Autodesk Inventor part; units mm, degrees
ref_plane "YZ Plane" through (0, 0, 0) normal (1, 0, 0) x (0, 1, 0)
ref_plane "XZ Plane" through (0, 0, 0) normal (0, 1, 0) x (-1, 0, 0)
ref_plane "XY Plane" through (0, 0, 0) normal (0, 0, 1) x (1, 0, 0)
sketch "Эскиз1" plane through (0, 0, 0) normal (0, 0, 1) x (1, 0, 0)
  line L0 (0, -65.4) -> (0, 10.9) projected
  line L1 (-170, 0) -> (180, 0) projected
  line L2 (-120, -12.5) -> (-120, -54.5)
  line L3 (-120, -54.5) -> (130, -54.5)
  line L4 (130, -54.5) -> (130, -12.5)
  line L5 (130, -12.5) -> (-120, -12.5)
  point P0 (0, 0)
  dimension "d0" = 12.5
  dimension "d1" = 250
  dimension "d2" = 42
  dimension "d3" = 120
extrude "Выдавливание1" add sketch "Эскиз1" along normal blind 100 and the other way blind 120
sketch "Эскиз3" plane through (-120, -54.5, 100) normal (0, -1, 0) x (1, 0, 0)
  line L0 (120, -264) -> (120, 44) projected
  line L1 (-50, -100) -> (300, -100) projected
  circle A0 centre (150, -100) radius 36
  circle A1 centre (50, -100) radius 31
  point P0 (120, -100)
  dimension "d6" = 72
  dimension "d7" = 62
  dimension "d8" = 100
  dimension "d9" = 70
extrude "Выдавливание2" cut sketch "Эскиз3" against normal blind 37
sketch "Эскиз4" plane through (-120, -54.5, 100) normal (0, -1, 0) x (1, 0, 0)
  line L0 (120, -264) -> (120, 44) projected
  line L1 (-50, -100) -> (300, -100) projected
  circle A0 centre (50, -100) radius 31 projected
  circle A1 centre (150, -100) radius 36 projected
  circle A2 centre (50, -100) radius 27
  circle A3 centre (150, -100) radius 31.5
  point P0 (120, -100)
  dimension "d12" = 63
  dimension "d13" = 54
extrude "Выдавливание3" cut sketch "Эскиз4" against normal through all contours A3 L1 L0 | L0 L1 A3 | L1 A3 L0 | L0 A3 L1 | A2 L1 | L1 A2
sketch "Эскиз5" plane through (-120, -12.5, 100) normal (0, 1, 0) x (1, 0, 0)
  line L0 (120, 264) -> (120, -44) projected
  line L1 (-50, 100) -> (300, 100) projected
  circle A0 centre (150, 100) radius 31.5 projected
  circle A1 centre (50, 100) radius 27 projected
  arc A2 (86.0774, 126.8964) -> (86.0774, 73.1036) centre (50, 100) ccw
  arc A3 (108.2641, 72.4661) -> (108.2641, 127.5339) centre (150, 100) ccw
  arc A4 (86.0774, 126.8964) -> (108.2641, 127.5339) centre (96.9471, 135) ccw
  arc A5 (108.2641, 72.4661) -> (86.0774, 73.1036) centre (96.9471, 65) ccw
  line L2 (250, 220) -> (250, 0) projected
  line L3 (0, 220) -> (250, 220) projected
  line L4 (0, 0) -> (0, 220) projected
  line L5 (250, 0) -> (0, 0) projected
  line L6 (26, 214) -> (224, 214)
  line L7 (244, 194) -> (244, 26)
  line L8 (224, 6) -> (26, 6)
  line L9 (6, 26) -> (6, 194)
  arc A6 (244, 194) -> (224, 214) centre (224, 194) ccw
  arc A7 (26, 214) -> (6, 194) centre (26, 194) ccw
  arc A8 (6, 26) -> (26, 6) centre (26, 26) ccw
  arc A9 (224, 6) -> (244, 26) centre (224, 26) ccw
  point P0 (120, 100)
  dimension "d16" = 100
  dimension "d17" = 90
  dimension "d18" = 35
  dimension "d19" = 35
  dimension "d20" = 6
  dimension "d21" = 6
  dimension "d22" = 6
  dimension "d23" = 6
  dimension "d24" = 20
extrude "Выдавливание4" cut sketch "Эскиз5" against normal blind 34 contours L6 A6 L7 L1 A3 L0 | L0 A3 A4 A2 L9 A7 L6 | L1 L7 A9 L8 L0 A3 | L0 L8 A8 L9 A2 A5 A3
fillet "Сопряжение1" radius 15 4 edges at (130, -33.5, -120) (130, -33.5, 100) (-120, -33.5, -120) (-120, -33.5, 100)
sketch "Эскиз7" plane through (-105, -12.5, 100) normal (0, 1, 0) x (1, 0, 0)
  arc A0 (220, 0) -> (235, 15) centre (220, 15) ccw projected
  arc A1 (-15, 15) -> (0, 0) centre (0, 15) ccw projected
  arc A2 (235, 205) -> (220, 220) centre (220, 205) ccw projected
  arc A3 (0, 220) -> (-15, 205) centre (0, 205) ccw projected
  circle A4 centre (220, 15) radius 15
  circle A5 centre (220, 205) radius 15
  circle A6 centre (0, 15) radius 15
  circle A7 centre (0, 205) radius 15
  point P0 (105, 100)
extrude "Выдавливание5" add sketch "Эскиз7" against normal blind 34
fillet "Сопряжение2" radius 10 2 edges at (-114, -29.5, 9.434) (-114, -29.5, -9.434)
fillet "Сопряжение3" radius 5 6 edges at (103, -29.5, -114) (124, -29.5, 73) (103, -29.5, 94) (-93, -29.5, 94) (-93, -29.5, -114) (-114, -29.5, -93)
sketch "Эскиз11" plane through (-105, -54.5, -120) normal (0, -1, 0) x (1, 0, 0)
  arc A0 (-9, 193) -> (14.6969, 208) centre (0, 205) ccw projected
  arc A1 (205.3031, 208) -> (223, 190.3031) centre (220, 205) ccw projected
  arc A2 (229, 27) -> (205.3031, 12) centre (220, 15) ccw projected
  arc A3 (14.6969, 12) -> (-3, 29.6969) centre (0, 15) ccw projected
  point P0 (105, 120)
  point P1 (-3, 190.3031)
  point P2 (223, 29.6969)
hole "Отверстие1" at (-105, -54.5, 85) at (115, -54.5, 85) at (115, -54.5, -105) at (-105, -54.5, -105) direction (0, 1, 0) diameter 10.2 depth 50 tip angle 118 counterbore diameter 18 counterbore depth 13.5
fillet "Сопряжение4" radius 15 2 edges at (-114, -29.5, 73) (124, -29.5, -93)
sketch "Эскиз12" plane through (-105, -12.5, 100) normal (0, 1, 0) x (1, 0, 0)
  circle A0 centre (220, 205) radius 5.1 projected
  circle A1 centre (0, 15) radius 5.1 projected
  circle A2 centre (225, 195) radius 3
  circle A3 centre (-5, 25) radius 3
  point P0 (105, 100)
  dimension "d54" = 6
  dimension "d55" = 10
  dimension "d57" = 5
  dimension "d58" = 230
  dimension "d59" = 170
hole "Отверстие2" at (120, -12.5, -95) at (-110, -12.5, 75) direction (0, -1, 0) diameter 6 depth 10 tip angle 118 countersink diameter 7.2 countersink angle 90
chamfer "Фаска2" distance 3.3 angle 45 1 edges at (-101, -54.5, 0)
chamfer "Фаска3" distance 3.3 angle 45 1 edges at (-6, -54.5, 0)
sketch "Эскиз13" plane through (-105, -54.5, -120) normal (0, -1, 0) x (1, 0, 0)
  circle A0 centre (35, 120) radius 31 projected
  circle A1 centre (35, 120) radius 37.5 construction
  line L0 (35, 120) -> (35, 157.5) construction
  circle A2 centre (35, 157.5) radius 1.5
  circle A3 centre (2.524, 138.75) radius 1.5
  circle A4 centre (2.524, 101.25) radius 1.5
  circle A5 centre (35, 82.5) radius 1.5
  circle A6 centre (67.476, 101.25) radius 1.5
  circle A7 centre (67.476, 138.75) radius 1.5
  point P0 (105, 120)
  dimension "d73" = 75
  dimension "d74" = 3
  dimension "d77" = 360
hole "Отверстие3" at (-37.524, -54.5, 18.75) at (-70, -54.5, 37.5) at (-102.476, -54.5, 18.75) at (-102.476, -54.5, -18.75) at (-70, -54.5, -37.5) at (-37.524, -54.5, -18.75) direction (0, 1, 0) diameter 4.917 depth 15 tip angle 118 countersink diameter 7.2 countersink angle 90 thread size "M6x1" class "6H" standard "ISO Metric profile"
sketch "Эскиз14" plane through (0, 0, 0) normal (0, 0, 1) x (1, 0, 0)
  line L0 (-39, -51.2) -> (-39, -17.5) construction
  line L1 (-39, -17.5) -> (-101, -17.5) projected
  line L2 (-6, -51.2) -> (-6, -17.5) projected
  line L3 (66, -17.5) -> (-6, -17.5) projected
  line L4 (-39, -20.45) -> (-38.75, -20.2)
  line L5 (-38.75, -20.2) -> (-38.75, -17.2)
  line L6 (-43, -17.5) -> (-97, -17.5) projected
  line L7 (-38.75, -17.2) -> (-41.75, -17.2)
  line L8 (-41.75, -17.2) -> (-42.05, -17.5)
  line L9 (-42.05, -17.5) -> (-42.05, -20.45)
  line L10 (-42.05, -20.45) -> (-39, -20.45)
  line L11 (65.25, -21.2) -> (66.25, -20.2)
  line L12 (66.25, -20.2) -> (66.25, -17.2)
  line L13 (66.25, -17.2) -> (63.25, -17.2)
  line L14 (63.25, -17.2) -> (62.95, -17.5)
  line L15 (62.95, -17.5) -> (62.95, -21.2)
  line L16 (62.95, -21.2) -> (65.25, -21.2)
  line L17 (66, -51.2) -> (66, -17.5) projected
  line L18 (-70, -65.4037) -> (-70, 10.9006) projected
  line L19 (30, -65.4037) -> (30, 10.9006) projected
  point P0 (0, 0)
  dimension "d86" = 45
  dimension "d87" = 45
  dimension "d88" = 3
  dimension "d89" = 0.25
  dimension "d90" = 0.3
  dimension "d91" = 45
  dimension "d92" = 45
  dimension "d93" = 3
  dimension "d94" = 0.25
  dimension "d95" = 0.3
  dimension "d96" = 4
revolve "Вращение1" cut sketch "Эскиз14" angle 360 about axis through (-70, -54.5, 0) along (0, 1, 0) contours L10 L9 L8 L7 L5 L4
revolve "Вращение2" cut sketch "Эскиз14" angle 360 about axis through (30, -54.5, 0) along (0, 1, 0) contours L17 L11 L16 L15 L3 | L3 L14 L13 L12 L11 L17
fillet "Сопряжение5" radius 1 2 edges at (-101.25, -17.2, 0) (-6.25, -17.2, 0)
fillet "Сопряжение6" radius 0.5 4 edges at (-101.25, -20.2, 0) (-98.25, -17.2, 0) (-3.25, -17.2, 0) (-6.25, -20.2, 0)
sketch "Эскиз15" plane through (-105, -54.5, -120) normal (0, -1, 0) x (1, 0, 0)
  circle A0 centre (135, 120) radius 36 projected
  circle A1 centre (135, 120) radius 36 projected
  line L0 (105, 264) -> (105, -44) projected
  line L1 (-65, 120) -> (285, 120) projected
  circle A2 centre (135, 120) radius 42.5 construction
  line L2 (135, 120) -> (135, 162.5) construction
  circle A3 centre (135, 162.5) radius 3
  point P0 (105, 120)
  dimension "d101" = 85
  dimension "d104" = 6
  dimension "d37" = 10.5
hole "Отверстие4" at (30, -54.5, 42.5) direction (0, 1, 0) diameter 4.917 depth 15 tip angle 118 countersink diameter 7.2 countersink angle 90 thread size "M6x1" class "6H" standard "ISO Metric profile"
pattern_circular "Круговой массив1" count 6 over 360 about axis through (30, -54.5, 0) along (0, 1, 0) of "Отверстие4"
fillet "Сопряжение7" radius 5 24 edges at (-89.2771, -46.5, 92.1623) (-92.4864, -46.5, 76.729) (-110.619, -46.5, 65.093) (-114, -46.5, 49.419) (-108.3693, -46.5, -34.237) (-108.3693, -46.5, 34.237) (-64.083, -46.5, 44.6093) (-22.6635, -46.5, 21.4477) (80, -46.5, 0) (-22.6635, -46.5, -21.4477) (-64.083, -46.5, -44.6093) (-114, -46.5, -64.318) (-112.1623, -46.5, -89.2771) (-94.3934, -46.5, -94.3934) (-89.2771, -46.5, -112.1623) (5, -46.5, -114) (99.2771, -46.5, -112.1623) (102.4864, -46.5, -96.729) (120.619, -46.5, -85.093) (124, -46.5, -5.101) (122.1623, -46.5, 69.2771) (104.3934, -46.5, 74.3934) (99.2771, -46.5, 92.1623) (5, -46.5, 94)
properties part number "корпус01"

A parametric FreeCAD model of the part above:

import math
import FreeCAD as App
import Part
import Sketcher
Q = App.Units.Quantity


def edges_at(feature, points):
    """Names of the edges that pass closest to the given points."""
    edges = feature.Shape.Edges
    near = lambda p: min(range(len(edges)), key=lambda i: edges[i].distToShape(Part.Vertex(*p))[0])
    return sorted({f"Edge{near(p) + 1}" for p in points})


def add_polygon(sketch, points):
    """Adds a closed chain of lines whose ends are joined by coincident constraints."""
    first, n = sketch.GeometryCount, len(points)
    for a, b in zip(points, points[1:] + points[:1]):
        sketch.addGeometry(Part.LineSegment(App.Vector(*a, 0), App.Vector(*b, 0)), False)
    for i in range(n):
        sketch.addConstraint(Sketcher.Constraint("Coincident", first + i, 2, first + (i + 1) % n, 1))

doc = App.newDocument("Part")
body = doc.addObject("PartDesign::Body", "Body")

# Sketch on XY plane
sketch1 = body.newObject("Sketcher::SketchObject", "Sketch")
sketch1.AttachmentSupport = (doc.getObject("XY_Plane"), [""])
sketch1.MapMode = "FlatFace"
add_polygon(sketch1, [(-120, -54.5), (130, -54.5), (130, -12.5), (-120, -12.5)])  # lines 0-3
sketch1.addConstraint(Sketcher.Constraint("Horizontal", 0))
sketch1.addConstraint(Sketcher.Constraint("Vertical", 1))
sketch1.addConstraint(Sketcher.Constraint("Horizontal", 2))
sketch1.addConstraint(Sketcher.Constraint("Vertical", 3))
sketch1.addConstraint(Sketcher.Constraint("DistanceX", 0, 1, 0, 2, 250.0))
sketch1.addConstraint(Sketcher.Constraint("DistanceY", 1, 1, 1, 2, 42.0))
sketch1.addConstraint(Sketcher.Constraint("DistanceX", 2, 2, -1, 1, 120.0))
sketch1.addConstraint(Sketcher.Constraint("DistanceY", 1, 2, -1, 1, 12.5))
pad1 = body.newObject("PartDesign::Pad", "Pad")
pad1.Profile = sketch1
pad1.Type = "TwoLengths"
pad1.Length = 100
pad1.Length2 = 120

# Sketch on XZ plane
sketch2 = body.newObject("Sketcher::SketchObject", "Sketch001")
sketch2.AttachmentSupport = (doc.getObject("XZ_Plane"), [""])
sketch2.MapMode = "FlatFace"
sketch2.AttachmentOffset = App.Placement(App.Vector(0, 0, 54.5), App.Rotation())
sketch2.addGeometry(Part.Circle(App.Vector(30, 0, 0), App.Vector(0, 0, 1), 36), False)
sketch2.addGeometry(Part.Circle(App.Vector(-70, 0, 0), App.Vector(0, 0, 1), 31), False)
sketch2.addConstraint(Sketcher.Constraint("PointOnObject", 0, 3, -1))
sketch2.addConstraint(Sketcher.Constraint("PointOnObject", 1, 3, -1))
sketch2.addConstraint(Sketcher.Constraint("Diameter", 0, 72.0))
sketch2.addConstraint(Sketcher.Constraint("Diameter", 1, 62.0))
sketch2.addConstraint(Sketcher.Constraint("DistanceX", 1, 3, -1, 1, 70.0))
sketch2.addConstraint(Sketcher.Constraint("DistanceX", 1, 3, 0, 3, 100.0))
pocket1 = body.newObject("PartDesign::Pocket", "Pocket")
pocket1.Profile = sketch2
pocket1.Length = 37

# Sketch on XZ plane
sketch3 = body.newObject("Sketcher::SketchObject", "Sketch002")
sketch3.AttachmentSupport = (doc.getObject("XZ_Plane"), [""])
sketch3.MapMode = "FlatFace"
sketch3.AttachmentOffset = App.Placement(App.Vector(0, 0, 54.5), App.Rotation())
sketch3.addGeometry(Part.Circle(App.Vector(30, 0, 0), App.Vector(0, 0, 1), 31.5), False)
sketch3.addGeometry(Part.Circle(App.Vector(-70, 0, 0), App.Vector(0, 0, 1), 27), False)
sketch3.addConstraint(Sketcher.Constraint("PointOnObject", 0, 3, -1))
sketch3.addConstraint(Sketcher.Constraint("PointOnObject", 1, 3, -1))
sketch3.addConstraint(Sketcher.Constraint("Diameter", 0, 63.0))
sketch3.addConstraint(Sketcher.Constraint("Diameter", 1, 54.0))
sketch3.addConstraint(Sketcher.Constraint("DistanceX", -1, 1, 0, 3, 30.0))
sketch3.addConstraint(Sketcher.Constraint("DistanceX", 1, 3, -1, 1, 70.0))
pocket2 = body.newObject("PartDesign::Pocket", "Pocket001")
pocket2.Profile = sketch3
pocket2.Type = "ThroughAll"

# Sketch on XZ plane
sketch4 = body.newObject("Sketcher::SketchObject", "Sketch003")
sketch4.AttachmentSupport = (doc.getObject("XZ_Plane"), [""])
sketch4.MapMode = "FlatFace"
sketch4.AttachmentOffset = App.Placement(App.Vector(0, 0, 12.5), App.Rotation())
sketch4.addGeometry(Part.LineSegment(App.Vector(104, -114, 0), App.Vector(-94, -114, 0)), False)
sketch4.addGeometry(Part.ArcOfCircle(Part.Circle(App.Vector(-94, -94, 0), App.Vector(0, 0, 1), 20), math.radians(180), math.radians(270)), False)
sketch4.addGeometry(Part.LineSegment(App.Vector(-114, -94, 0), App.Vector(-114, -9.433723, 0)), False)
sketch4.addGeometry(Part.ArcOfCircle(Part.Circle(App.Vector(-70, 0, 0), App.Vector(0, 0, 1), 44.999946), math.radians(-167.89883), math.radians(-36.705242)), False)
sketch4.addGeometry(Part.ArcOfCircle(Part.Circle(App.Vector(-23.0529, -35, 0), App.Vector(0, 0, 1), 13.557976), math.radians(33.413807), math.radians(143.294662)), False)
sketch4.addGeometry(Part.ArcOfCircle(Part.Circle(App.Vector(30, 0, 0), App.Vector(0, 0, 1), 50.00001), math.radians(-146.586469), math.radians(146.586469)), False)
sketch4.addGeometry(Part.ArcOfCircle(Part.Circle(App.Vector(-23.0529, 35, 0), App.Vector(0, 0, 1), 13.557918), math.radians(-143.294662), math.radians(-33.413807)), False)
sketch4.addGeometry(Part.ArcOfCircle(Part.Circle(App.Vector(-70, 0, 0), App.Vector(0, 0, 1), 44.999946), math.radians(36.705242), math.radians(167.89883)), False)
sketch4.addGeometry(Part.LineSegment(App.Vector(-114, 9.433723, 0), App.Vector(-114, 74, 0)), False)
sketch4.addGeometry(Part.ArcOfCircle(Part.Circle(App.Vector(-94, 74, 0), App.Vector(0, 0, 1), 20), math.radians(90), math.radians(180)), False)
sketch4.addGeometry(Part.LineSegment(App.Vector(-94, 94, 0), App.Vector(104, 94, 0)), False)
sketch4.addGeometry(Part.ArcOfCircle(Part.Circle(App.Vector(104, 74, 0), App.Vector(0, 0, 1), 20), math.radians(0), math.radians(90)), False)
sketch4.addGeometry(Part.LineSegment(App.Vector(124, 74, 0), App.Vector(124, -94, 0)), False)
sketch4.addGeometry(Part.ArcOfCircle(Part.Circle(App.Vector(104, -94, 0), App.Vector(0, 0, 1), 20), math.radians(-90), math.radians(0)), False)
sketch4.addConstraint(Sketcher.Constraint("Tangent", 0, 2, 1, 2))
sketch4.addConstraint(Sketcher.Constraint("Tangent", 1, 1, 2, 1))
sketch4.addConstraint(Sketcher.Constraint("Coincident", 2, 2, 3, 1))
sketch4.addConstraint(Sketcher.Constraint("Tangent", 3, 2, 4, 2))
sketch4.addConstraint(Sketcher.Constraint("Tangent", 4, 1, 5, 1))
sketch4.addConstraint(Sketcher.Constraint("Tangent", 5, 2, 6, 2))
sketch4.addConstraint(Sketcher.Constraint("Tangent", 6, 1, 7, 1))
sketch4.addConstraint(Sketcher.Constraint("Coincident", 7, 2, 8, 1))
sketch4.addConstraint(Sketcher.Constraint("Tangent", 8, 2, 9, 2))
sketch4.addConstraint(Sketcher.Constraint("Tangent", 9, 1, 10, 1))
sketch4.addConstraint(Sketcher.Constraint("Tangent", 10, 2, 11, 2))
sketch4.addConstraint(Sketcher.Constraint("Tangent", 11, 1, 12, 1))
sketch4.addConstraint(Sketcher.Constraint("Tangent", 12, 2, 13, 2))
sketch4.addConstraint(Sketcher.Constraint("Tangent", 13, 1, 0, 1))
sketch4.addConstraint(Sketcher.Constraint("Horizontal", 0))
sketch4.addConstraint(Sketcher.Constraint("Vertical", 2))
sketch4.addConstraint(Sketcher.Constraint("Vertical", 8))
sketch4.addConstraint(Sketcher.Constraint("Horizontal", 10))
sketch4.addConstraint(Sketcher.Constraint("Vertical", 12))
sketch4.addConstraint(Sketcher.Constraint("Coincident", 7, 3, 3, 3))
sketch4.addConstraint(Sketcher.Constraint("Equal", 4, 6))
sketch4.addConstraint(Sketcher.Constraint("Equal", 3, 7))
sketch4.addConstraint(Sketcher.Constraint("Equal", 1, 9))
sketch4.addConstraint(Sketcher.Constraint("Equal", 9, 11))
sketch4.addConstraint(Sketcher.Constraint("Equal", 11, 13))
sketch4.addConstraint(Sketcher.Constraint("Symmetric", 4, 3, 6, 3, -1))
sketch4.addConstraint(Sketcher.Constraint("Vertical", 1, 3, 9, 3))
sketch4.addConstraint(Sketcher.Constraint("Radius", 1, 20.0))
sketch4.addConstraint(Sketcher.Constraint("Radius", 3, 45.0))
sketch4.addConstraint(Sketcher.Constraint("Radius", 5, 50.0))
sketch4.addConstraint(Sketcher.Constraint("DistanceY", 4, 3, -1, 1, 35.0))
sketch4.addConstraint(Sketcher.Constraint("DistanceX", 3, 3, 5, 3, 100.0))
sketch4.addConstraint(Sketcher.Constraint("DistanceX", 0, 2, 0, 1, 198.0))
sketch4.addConstraint(Sketcher.Constraint("DistanceY", 12, 2, 12, 1, 168.0))
sketch4.addConstraint(Sketcher.Constraint("DistanceX", 1, 3, -1, 1, 94.0))
sketch4.addConstraint(Sketcher.Constraint("DistanceY", 1, 3, -1, 1, 94.0))
sketch4.addConstraint(Sketcher.Constraint("DistanceX", 3, 3, -1, 1, 70.0))
pocket3 = body.newObject("PartDesign::Pocket", "Pocket002")
pocket3.Profile = sketch4
pocket3.Length = 34
pocket3.Reversed = True
doc.recompute()

fillet = body.newObject("PartDesign::Fillet", "Fillet")
fillet.Base = (pocket3, edges_at(pocket3, [
    (130, -33.5, -120),
    (130, -33.5, 100),
    (-120, -33.5, -120),
    (-120, -33.5, 100),
]))
fillet.Radius = 15

# Sketch on XZ plane
sketch5 = body.newObject("Sketcher::SketchObject", "Sketch004")
sketch5.AttachmentSupport = (doc.getObject("XZ_Plane"), [""])
sketch5.MapMode = "FlatFace"
sketch5.AttachmentOffset = App.Placement(App.Vector(0, 0, 12.5), App.Rotation())
sketch5.addGeometry(Part.Circle(App.Vector(115, 85, 0), App.Vector(0, 0, 1), 15), False)
sketch5.addGeometry(Part.Circle(App.Vector(-105, 85, 0), App.Vector(0, 0, 1), 15), False)
sketch5.addGeometry(Part.Circle(App.Vector(115, -105, 0), App.Vector(0, 0, 1), 15), False)
sketch5.addGeometry(Part.Circle(App.Vector(-105, -105, 0), App.Vector(0, 0, 1), 15), False)
sketch5.addConstraint(Sketcher.Constraint("Equal", 0, 1))
sketch5.addConstraint(Sketcher.Constraint("Equal", 1, 2))
sketch5.addConstraint(Sketcher.Constraint("Equal", 2, 3))
sketch5.addConstraint(Sketcher.Constraint("Horizontal", 0, 3, 1, 3))
sketch5.addConstraint(Sketcher.Constraint("Horizontal", 2, 3, 3, 3))
sketch5.addConstraint(Sketcher.Constraint("Vertical", 0, 3, 2, 3))
sketch5.addConstraint(Sketcher.Constraint("Vertical", 1, 3, 3, 3))
sketch5.addConstraint(Sketcher.Constraint("Diameter", 0, 30.0))
sketch5.addConstraint(Sketcher.Constraint("DistanceX", -1, 1, 0, 3, 115.0))
sketch5.addConstraint(Sketcher.Constraint("DistanceY", -1, 1, 0, 3, 85.0))
sketch5.addConstraint(Sketcher.Constraint("DistanceX", 1, 3, -1, 1, 105.0))
sketch5.addConstraint(Sketcher.Constraint("DistanceY", 2, 3, -1, 1, 105.0))
pad2 = body.newObject("PartDesign::Pad", "Pad001")
pad2.Profile = sketch5
pad2.Length = 34
doc.recompute()

fillet2 = body.newObject("PartDesign::Fillet", "Fillet001")
fillet2.Base = (pad2, edges_at(pad2, [(-114, -29.5, 9.434), (-114, -29.5, -9.434)]))
fillet2.Radius = 10
doc.recompute()

fillet3 = body.newObject("PartDesign::Fillet", "Fillet002")
fillet3.Base = (fillet2, edges_at(fillet2, [
    (103, -29.5, -114),
    (124, -29.5, 73),
    (103, -29.5, 94),
    (-93, -29.5, 94),
    (-93, -29.5, -114),
    (-114, -29.5, -93),
]))
fillet3.Radius = 5

# Sketch on XZ plane
sketch6 = body.newObject("Sketcher::SketchObject", "Sketch005")
sketch6.AttachmentSupport = (doc.getObject("XZ_Plane"), [""])
sketch6.MapMode = "FlatFace"
sketch6.AttachmentOffset = App.Placement(App.Vector(0, 0, 54.5), App.Rotation())
sketch6.addGeometry(Part.Circle(App.Vector(-105, 85, 0), App.Vector(0, 0, 1), 5.1), False)
sketch6.addGeometry(Part.Circle(App.Vector(115, 85, 0), App.Vector(0, 0, 1), 5.1), False)
sketch6.addGeometry(Part.Circle(App.Vector(115, -105, 0), App.Vector(0, 0, 1), 5.1), False)
sketch6.addGeometry(Part.Circle(App.Vector(-105, -105, 0), App.Vector(0, 0, 1), 5.1), False)
sketch6.addConstraint(Sketcher.Constraint("Equal", 0, 1))
sketch6.addConstraint(Sketcher.Constraint("Equal", 1, 2))
sketch6.addConstraint(Sketcher.Constraint("Equal", 2, 3))
sketch6.addConstraint(Sketcher.Constraint("Horizontal", 0, 3, 1, 3))
sketch6.addConstraint(Sketcher.Constraint("Horizontal", 2, 3, 3, 3))
sketch6.addConstraint(Sketcher.Constraint("Vertical", 1, 3, 2, 3))
sketch6.addConstraint(Sketcher.Constraint("Vertical", 0, 3, 3, 3))
sketch6.addConstraint(Sketcher.Constraint("Diameter", 0, 10.2))
sketch6.addConstraint(Sketcher.Constraint("DistanceX", 0, 3, -1, 1, 105.0))
sketch6.addConstraint(Sketcher.Constraint("DistanceY", -1, 1, 0, 3, 85.0))
sketch6.addConstraint(Sketcher.Constraint("DistanceX", -1, 1, 1, 3, 115.0))
sketch6.addConstraint(Sketcher.Constraint("DistanceY", 2, 3, -1, 1, 105.0))
doc.recompute()
hole = body.newObject("PartDesign::Hole", "Hole")
hole.Profile = sketch6
hole.ThreadType = "None"
hole.Diameter = 10.2
hole.DepthType = "Dimension"
hole.Depth = 50
hole.DrillPoint = "Angled"
hole.DrillPointAngle = 118
hole.HoleCutType = "Counterbore"
hole.HoleCutDiameter = 18
hole.HoleCutDepth = 13.5
doc.recompute()

fillet4 = body.newObject("PartDesign::Fillet", "Fillet003")
fillet4.Base = (hole, edges_at(hole, [(-114, -29.5, 73), (124, -29.5, -93)]))
fillet4.Radius = 15

# Sketch on XZ plane
sketch7 = body.newObject("Sketcher::SketchObject", "Sketch006")
sketch7.AttachmentSupport = (doc.getObject("XZ_Plane"), [""])
sketch7.MapMode = "FlatFace"
sketch7.AttachmentOffset = App.Placement(App.Vector(0, 0, 12.5), App.Rotation())
sketch7.addGeometry(Part.Circle(App.Vector(120, -95, 0), App.Vector(0, 0, 1), 3), False)
sketch7.addGeometry(Part.Circle(App.Vector(-110, 75, 0), App.Vector(0, 0, 1), 3), False)
sketch7.addConstraint(Sketcher.Constraint("Equal", 0, 1))
sketch7.addConstraint(Sketcher.Constraint("Diameter", 0, 6.0))
sketch7.addConstraint(Sketcher.Constraint("DistanceX", -1, 1, 0, 3, 120.0))
sketch7.addConstraint(Sketcher.Constraint("DistanceY", 0, 3, -1, 1, 95.0))
sketch7.addConstraint(Sketcher.Constraint("DistanceX", 1, 3, -1, 1, 110.0))
sketch7.addConstraint(Sketcher.Constraint("DistanceY", -1, 1, 1, 3, 75.0))
doc.recompute()
hole2 = body.newObject("PartDesign::Hole", "Hole001")
hole2.Profile = sketch7
hole2.ThreadType = "None"
hole2.Diameter = 6
hole2.DepthType = "Dimension"
hole2.Depth = 10
hole2.DrillPoint = "Angled"
hole2.DrillPointAngle = 118
hole2.HoleCutType = "Countersink"
hole2.HoleCutDiameter = 7.2
hole2.HoleCutCountersinkAngle = 90
hole2.Reversed = True
doc.recompute()

chamfer = body.newObject("PartDesign::Chamfer", "Chamfer")
chamfer.Base = (hole2, edges_at(hole2, [(-101, -54.5, 0)]))
chamfer.Size = 3.3
doc.recompute()

chamfer2 = body.newObject("PartDesign::Chamfer", "Chamfer001")
chamfer2.Base = (chamfer, edges_at(chamfer, [(-6, -54.5, 0)]))
chamfer2.Size = 3.3

# Sketch on XZ plane
sketch8 = body.newObject("Sketcher::SketchObject", "Sketch007")
sketch8.AttachmentSupport = (doc.getObject("XZ_Plane"), [""])
sketch8.MapMode = "FlatFace"
sketch8.AttachmentOffset = App.Placement(App.Vector(0, 0, 54.5), App.Rotation())
sketch8.addGeometry(Part.Circle(App.Vector(-37.524, 18.75, 0), App.Vector(0, 0, 1), 2.4585), False)
sketch8.addGeometry(Part.Circle(App.Vector(-70, 37.5, 0), App.Vector(0, 0, 1), 2.4585), False)
sketch8.addGeometry(Part.Circle(App.Vector(-102.476, 18.75, 0), App.Vector(0, 0, 1), 2.4585), False)
sketch8.addGeometry(Part.Circle(App.Vector(-102.476, -18.75, 0), App.Vector(0, 0, 1), 2.4585), False)
sketch8.addGeometry(Part.Circle(App.Vector(-70, -37.5, 0), App.Vector(0, 0, 1), 2.4585), False)
sketch8.addGeometry(Part.Circle(App.Vector(-37.524, -18.75, 0), App.Vector(0, 0, 1), 2.4585), False)
sketch8.addConstraint(Sketcher.Constraint("Equal", 0, 1))
sketch8.addConstraint(Sketcher.Constraint("Equal", 1, 2))
sketch8.addConstraint(Sketcher.Constraint("Equal", 2, 3))
sketch8.addConstraint(Sketcher.Constraint("Equal", 3, 4))
sketch8.addConstraint(Sketcher.Constraint("Equal", 4, 5))
sketch8.addConstraint(Sketcher.Constraint("Symmetric", 2, 3, 3, 3, -1))
sketch8.addConstraint(Sketcher.Constraint("Symmetric", 1, 3, 4, 3, -1))
sketch8.addConstraint(Sketcher.Constraint("Symmetric", 0, 3, 5, 3, -1))
sketch8.addConstraint(Sketcher.Constraint("Horizontal", 0, 3, 2, 3))
sketch8.addConstraint(Sketcher.Constraint("Diameter", 0, 4.917))
sketch8.addConstraint(Sketcher.Constraint("DistanceX", 1, 3, -1, 1, 70.0))
sketch8.addConstraint(Sketcher.Constraint("DistanceY", 4, 3, 1, 3, 75.0))
sketch8.addConstraint(Sketcher.Constraint("DistanceY", 3, 3, 2, 3, 37.5))
sketch8.addConstraint(Sketcher.Constraint("DistanceX", 0, 3, -1, 1, 37.524))
sketch8.addConstraint(Sketcher.Constraint("DistanceX", 2, 3, -1, 1, 102.476))
doc.recompute()
hole3 = body.newObject("PartDesign::Hole", "Hole002")
hole3.Profile = sketch8
hole3.ThreadType = "None"
hole3.Diameter = 4.917
hole3.DepthType = "Dimension"
hole3.Depth = 15
hole3.DrillPoint = "Angled"
hole3.DrillPointAngle = 118
hole3.HoleCutType = "Countersink"
hole3.HoleCutDiameter = 7.2
hole3.HoleCutCountersinkAngle = 90

# Sketch on XY plane
sketch9 = body.newObject("Sketcher::SketchObject", "Sketch008")
sketch9.AttachmentSupport = (doc.getObject("XY_Plane"), [""])
sketch9.MapMode = "FlatFace"
add_polygon(sketch9, [(-42.05, -20.45), (-39, -20.45), (-38.75, -20.2), (-38.75, -17.2), (-41.75, -17.2), (-42.05, -17.5)])  # lines 0-5
sketch9.addGeometry(Part.LineSegment(App.Vector(-70, -20.45, 0), App.Vector(-70, -17.2, 0)), True)  # axis
sketch9.addConstraint(Sketcher.Constraint("Horizontal", 0))
sketch9.addConstraint(Sketcher.Constraint("Vertical", 2))
sketch9.addConstraint(Sketcher.Constraint("Horizontal", 3))
sketch9.addConstraint(Sketcher.Constraint("Vertical", 5))
sketch9.addConstraint(Sketcher.Constraint("Vertical", 6))
sketch9.addConstraint(Sketcher.Constraint("Parallel", 1, 4))
sketch9.addConstraint(Sketcher.Constraint("Horizontal", 5, 2, 6, 1))
sketch9.addConstraint(Sketcher.Constraint("Horizontal", 3, 2, 6, 2))
sketch9.addConstraint(Sketcher.Constraint("Equal", 3, 2))
sketch9.addConstraint(Sketcher.Constraint("DistanceX", 3, 2, 3, 1, 3.0))
sketch9.addConstraint(Sketcher.Constraint("Angle", 1, Q("45 deg")))
sketch9.addConstraint(Sketcher.Constraint("DistanceX", 4, 2, 3, 2, 0.3))
sketch9.addConstraint(Sketcher.Constraint("DistanceX", 0, 2, 1, 2, 0.25))
sketch9.addConstraint(Sketcher.Constraint("DistanceX", 0, 2, -1, 1, 39.0))
sketch9.addConstraint(Sketcher.Constraint("DistanceX", 6, 1, -1, 1, 70.0))
sketch9.addConstraint(Sketcher.Constraint("DistanceY", 1, 2, -1, 1, 20.2))
groove = body.newObject("PartDesign::Groove", "Groove")
groove.Profile = sketch9
groove.ReferenceAxis = (sketch9, ["Axis0"])
groove.Angle = 360

# Sketch on XY plane
sketch10 = body.newObject("Sketcher::SketchObject", "Sketch009")
sketch10.AttachmentSupport = (doc.getObject("XY_Plane"), [""])
sketch10.MapMode = "FlatFace"
add_polygon(sketch10, [(65.25, -21.2), (66.25, -20.2), (66.25, -17.2), (63.25, -17.2), (62.95, -17.5), (62.95, -21.2)])  # lines 0-5
sketch10.addGeometry(Part.LineSegment(App.Vector(30, -21.2, 0), App.Vector(30, -17.2, 0)), True)  # axis
sketch10.addConstraint(Sketcher.Constraint("Vertical", 1))
sketch10.addConstraint(Sketcher.Constraint("Horizontal", 2))
sketch10.addConstraint(Sketcher.Constraint("Vertical", 4))
sketch10.addConstraint(Sketcher.Constraint("Horizontal", 5))
sketch10.addConstraint(Sketcher.Constraint("Vertical", 6))
sketch10.addConstraint(Sketcher.Constraint("Parallel", 0, 3))
sketch10.addConstraint(Sketcher.Constraint("Horizontal", 5, 2, 6, 1))
sketch10.addConstraint(Sketcher.Constraint("Horizontal", 2, 2, 6, 2))
sketch10.addConstraint(Sketcher.Constraint("Equal", 2, 1))
sketch10.addConstraint(Sketcher.Constraint("DistanceX", 2, 2, 2, 1, 3.0))
sketch10.addConstraint(Sketcher.Constraint("DistanceY", 6, 1, 6, 2, 4.0))
sketch10.addConstraint(Sketcher.Constraint("Angle", 0, Q("45 deg")))
sketch10.addConstraint(Sketcher.Constraint("DistanceX", 3, 2, 2, 2, 0.3))
sketch10.addConstraint(Sketcher.Constraint("DistanceX", -1, 1, 6, 1, 30.0))
sketch10.addConstraint(Sketcher.Constraint("DistanceY", 0, 2, -1, 1, 20.2))
sketch10.addConstraint(Sketcher.Constraint("DistanceX", -1, 1, 0, 2, 66.25))
groove2 = body.newObject("PartDesign::Groove", "Groove001")
groove2.Profile = sketch10
groove2.ReferenceAxis = (sketch10, ["Axis0"])
groove2.Angle = 360
doc.recompute()

fillet5 = body.newObject("PartDesign::Fillet", "Fillet004")
fillet5.Base = (groove2, edges_at(groove2, [(-101.25, -17.2, 0), (-6.25, -17.2, 0)]))
fillet5.Radius = 1
doc.recompute()

fillet6 = body.newObject("PartDesign::Fillet", "Fillet005")
fillet6.Base = (fillet5, edges_at(fillet5, [
    (-101.25, -20.2, 0),
    (-98.25, -17.2, 0),
    (-3.25, -17.2, 0),
    (-6.25, -20.2, 0),
]))
fillet6.Radius = 0.5

# Sketch on XZ plane
sketch11 = body.newObject("Sketcher::SketchObject", "Sketch010")
sketch11.AttachmentSupport = (doc.getObject("XZ_Plane"), [""])
sketch11.MapMode = "FlatFace"
sketch11.AttachmentOffset = App.Placement(App.Vector(0, 0, 54.5), App.Rotation())
sketch11.addGeometry(Part.Circle(App.Vector(30, 42.5, 0), App.Vector(0, 0, 1), 2.4585), False)
sketch11.addConstraint(Sketcher.Constraint("Diameter", 0, 4.917))
sketch11.addConstraint(Sketcher.Constraint("DistanceX", -1, 1, 0, 3, 30.0))
sketch11.addConstraint(Sketcher.Constraint("DistanceY", -1, 1, 0, 3, 42.5))
doc.recompute()
hole4 = body.newObject("PartDesign::Hole", "Hole003")
hole4.Profile = sketch11
hole4.ThreadType = "None"
hole4.Diameter = 4.917
hole4.DepthType = "Dimension"
hole4.Depth = 15
hole4.DrillPoint = "Angled"
hole4.DrillPointAngle = 118
hole4.HoleCutType = "Countersink"
hole4.HoleCutDiameter = 7.2
hole4.HoleCutCountersinkAngle = 90
doc.recompute()

datumline = body.newObject("PartDesign::Line", "DatumLine")
datumline.Placement = App.Placement(App.Vector(30, 0, 0), App.Rotation(App.Vector(0, 0, 1), App.Vector(0, 1, 0)))
polarpattern = body.newObject("PartDesign::PolarPattern", "PolarPattern")
polarpattern.Originals = [hole4]
polarpattern.Axis = (datumline, [""])
polarpattern.Angle = 360
polarpattern.Occurrences = 6
body.Tip = polarpattern
doc.recompute()

fillet7 = body.newObject("PartDesign::Fillet", "Fillet006")
fillet7.Base = (polarpattern, edges_at(polarpattern, [
    (-89.277, -46.5, 92.162),
    (-92.486, -46.5, 76.729),
    (-110.619, -46.5, 65.093),
    (-114, -46.5, 49.419),
    (-108.369, -46.5, -34.237),
    (-108.369, -46.5, 34.237),
    (-64.083, -46.5, 44.609),
    (-22.663, -46.5, 21.448),
    (80, -46.5, 0),
    (-22.663, -46.5, -21.448),
    (-64.083, -46.5, -44.609),
    (-114, -46.5, -64.318),
    (-112.162, -46.5, -89.277),
    (-94.393, -46.5, -94.393),
    (-89.277, -46.5, -112.162),
    (5, -46.5, -114),
    (99.277, -46.5, -112.162),
    (102.486, -46.5, -96.729),
    (120.619, -46.5, -85.093),
    (124, -46.5, -5.101),
    (122.162, -46.5, 69.277),
    (104.393, -46.5, 74.393),
    (99.277, -46.5, 92.162),
    (5, -46.5, 94),
]))
fillet7.Radius = 5

doc.recompute()
